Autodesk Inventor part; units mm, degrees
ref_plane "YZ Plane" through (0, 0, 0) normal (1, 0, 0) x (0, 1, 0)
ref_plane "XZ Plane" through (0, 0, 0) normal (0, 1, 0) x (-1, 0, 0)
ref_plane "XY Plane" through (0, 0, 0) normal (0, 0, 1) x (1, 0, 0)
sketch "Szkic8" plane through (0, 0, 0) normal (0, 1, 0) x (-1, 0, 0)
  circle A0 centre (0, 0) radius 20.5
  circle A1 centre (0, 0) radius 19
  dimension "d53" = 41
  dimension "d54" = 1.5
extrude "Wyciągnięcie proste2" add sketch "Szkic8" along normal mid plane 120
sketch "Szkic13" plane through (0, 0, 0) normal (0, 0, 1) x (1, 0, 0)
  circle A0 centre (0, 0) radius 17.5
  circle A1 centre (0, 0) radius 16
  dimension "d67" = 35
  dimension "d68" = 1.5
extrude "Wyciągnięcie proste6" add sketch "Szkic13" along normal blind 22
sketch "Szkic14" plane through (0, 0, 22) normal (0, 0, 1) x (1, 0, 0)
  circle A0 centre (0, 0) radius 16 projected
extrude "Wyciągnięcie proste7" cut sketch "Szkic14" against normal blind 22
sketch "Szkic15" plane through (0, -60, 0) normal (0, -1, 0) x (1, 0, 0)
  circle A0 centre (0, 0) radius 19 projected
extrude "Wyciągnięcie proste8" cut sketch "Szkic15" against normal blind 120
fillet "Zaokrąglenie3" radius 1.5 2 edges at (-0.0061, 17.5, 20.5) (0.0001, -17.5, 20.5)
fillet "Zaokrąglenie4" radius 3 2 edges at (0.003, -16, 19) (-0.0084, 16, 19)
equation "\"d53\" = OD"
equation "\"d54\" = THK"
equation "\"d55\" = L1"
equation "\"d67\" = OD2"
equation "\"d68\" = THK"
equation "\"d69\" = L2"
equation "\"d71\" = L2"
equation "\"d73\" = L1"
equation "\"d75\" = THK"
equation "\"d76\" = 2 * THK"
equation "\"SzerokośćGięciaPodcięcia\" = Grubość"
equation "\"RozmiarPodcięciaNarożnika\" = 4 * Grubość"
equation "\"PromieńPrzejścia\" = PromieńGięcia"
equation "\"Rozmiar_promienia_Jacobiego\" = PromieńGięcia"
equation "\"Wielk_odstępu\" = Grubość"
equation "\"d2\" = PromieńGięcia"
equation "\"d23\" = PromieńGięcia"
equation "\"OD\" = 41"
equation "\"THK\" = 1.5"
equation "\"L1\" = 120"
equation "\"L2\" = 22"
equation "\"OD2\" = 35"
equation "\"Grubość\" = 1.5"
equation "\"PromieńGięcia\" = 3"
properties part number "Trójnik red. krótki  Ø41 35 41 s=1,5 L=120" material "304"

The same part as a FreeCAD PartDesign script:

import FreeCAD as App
import Part
import Sketcher
from FreeCAD import Vector


def edges_at(feature, points):
    """Names of the edges that pass closest to the given points."""
    edges = feature.Shape.Edges
    near = lambda p: min(range(len(edges)), key=lambda i: edges[i].distToShape(Part.Vertex(*p))[0])
    return sorted({f"Edge{near(p) + 1}" for p in points})

doc = App.newDocument("Part")
body = doc.addObject("PartDesign::Body", "Body")

# Sketch on XZ plane
sketch1 = body.newObject("Sketcher::SketchObject", "Sketch")
sketch1.AttachmentSupport = (doc.getObject("XZ_Plane"), [""])
sketch1.MapMode = "FlatFace"
sketch1.addGeometry(Part.Circle(Vector(0, 0, 0), Vector(0, 0, 1), 20), False)
sketch1.addGeometry(Part.Circle(Vector(0, 0, 0), Vector(0, 0, 1), 19), False)
sketch1.addConstraint(Sketcher.Constraint("Coincident", 0, 3, -1, 1))
sketch1.addConstraint(Sketcher.Constraint("Coincident", 1, 3, -1, 1))
sketch1.addConstraint(Sketcher.Constraint("Diameter", 0, 41.0))
sketch1.addConstraint(Sketcher.Constraint("Diameter", 1, 38.0))
pad1 = body.newObject("PartDesign::Pad", "Pad")
pad1.Profile = sketch1
pad1.Length = 120
pad1.Midplane = True

# Sketch on XY plane
sketch2 = body.newObject("Sketcher::SketchObject", "Sketch001")
sketch2.AttachmentSupport = (doc.getObject("XY_Plane"), [""])
sketch2.MapMode = "FlatFace"
sketch2.addGeometry(Part.Circle(Vector(0, 0, 0), Vector(0, 0, 1), 18), False)
sketch2.addGeometry(Part.Circle(Vector(0, 0, 0), Vector(0, 0, 1), 16), False)
sketch2.addConstraint(Sketcher.Constraint("Coincident", 0, 3, -1, 1))
sketch2.addConstraint(Sketcher.Constraint("Coincident", 1, 3, -1, 1))
sketch2.addConstraint(Sketcher.Constraint("Diameter", 0, 35.0))
sketch2.addConstraint(Sketcher.Constraint("Diameter", 1, 32.0))
pad2 = body.newObject("PartDesign::Pad", "Pad001")
pad2.Profile = sketch2
pad2.Length = 22

# Sketch on XY plane
sketch3 = body.newObject("Sketcher::SketchObject", "Sketch002")
sketch3.AttachmentSupport = (doc.getObject("XY_Plane"), [""])
sketch3.MapMode = "FlatFace"
sketch3.AttachmentOffset = App.Placement(Vector(0, 0, 22), App.Rotation())
sketch3.addGeometry(Part.Circle(Vector(0, 0, 0), Vector(0, 0, 1), 16), False)
sketch3.addConstraint(Sketcher.Constraint("Coincident", 0, 3, -1, 1))
sketch3.addConstraint(Sketcher.Constraint("Diameter", 0, 32.0))
pocket1 = body.newObject("PartDesign::Pocket", "Pocket")
pocket1.Profile = sketch3
pocket1.Length = 22

# Sketch on XZ plane
sketch4 = body.newObject("Sketcher::SketchObject", "Sketch003")
sketch4.AttachmentSupport = (doc.getObject("XZ_Plane"), [""])
sketch4.MapMode = "FlatFace"
sketch4.AttachmentOffset = App.Placement(Vector(0, 0, 60), App.Rotation())
sketch4.addGeometry(Part.Circle(Vector(0, 0, 0), Vector(0, 0, 1), 19), False)
sketch4.addConstraint(Sketcher.Constraint("Coincident", 0, 3, -1, 1))
sketch4.addConstraint(Sketcher.Constraint("Diameter", 0, 38.0))
pocket2 = body.newObject("PartDesign::Pocket", "Pocket001")
pocket2.Profile = sketch4
pocket2.Length = 120
doc.recompute()

fillet = body.newObject("PartDesign::Fillet", "Fillet")
fillet.Base = (pocket2, edges_at(pocket2, [(-0.006, 17.5, 20.5), (0, -17.5, 20.5)]))
fillet.Radius = 1.5
doc.recompute()

fillet2 = body.newObject("PartDesign::Fillet", "Fillet001")
fillet2.Base = (fillet, edges_at(fillet, [(0.003, -16, 19), (-0.008, 16, 19)]))
fillet2.Radius = 3

doc.recompute()
